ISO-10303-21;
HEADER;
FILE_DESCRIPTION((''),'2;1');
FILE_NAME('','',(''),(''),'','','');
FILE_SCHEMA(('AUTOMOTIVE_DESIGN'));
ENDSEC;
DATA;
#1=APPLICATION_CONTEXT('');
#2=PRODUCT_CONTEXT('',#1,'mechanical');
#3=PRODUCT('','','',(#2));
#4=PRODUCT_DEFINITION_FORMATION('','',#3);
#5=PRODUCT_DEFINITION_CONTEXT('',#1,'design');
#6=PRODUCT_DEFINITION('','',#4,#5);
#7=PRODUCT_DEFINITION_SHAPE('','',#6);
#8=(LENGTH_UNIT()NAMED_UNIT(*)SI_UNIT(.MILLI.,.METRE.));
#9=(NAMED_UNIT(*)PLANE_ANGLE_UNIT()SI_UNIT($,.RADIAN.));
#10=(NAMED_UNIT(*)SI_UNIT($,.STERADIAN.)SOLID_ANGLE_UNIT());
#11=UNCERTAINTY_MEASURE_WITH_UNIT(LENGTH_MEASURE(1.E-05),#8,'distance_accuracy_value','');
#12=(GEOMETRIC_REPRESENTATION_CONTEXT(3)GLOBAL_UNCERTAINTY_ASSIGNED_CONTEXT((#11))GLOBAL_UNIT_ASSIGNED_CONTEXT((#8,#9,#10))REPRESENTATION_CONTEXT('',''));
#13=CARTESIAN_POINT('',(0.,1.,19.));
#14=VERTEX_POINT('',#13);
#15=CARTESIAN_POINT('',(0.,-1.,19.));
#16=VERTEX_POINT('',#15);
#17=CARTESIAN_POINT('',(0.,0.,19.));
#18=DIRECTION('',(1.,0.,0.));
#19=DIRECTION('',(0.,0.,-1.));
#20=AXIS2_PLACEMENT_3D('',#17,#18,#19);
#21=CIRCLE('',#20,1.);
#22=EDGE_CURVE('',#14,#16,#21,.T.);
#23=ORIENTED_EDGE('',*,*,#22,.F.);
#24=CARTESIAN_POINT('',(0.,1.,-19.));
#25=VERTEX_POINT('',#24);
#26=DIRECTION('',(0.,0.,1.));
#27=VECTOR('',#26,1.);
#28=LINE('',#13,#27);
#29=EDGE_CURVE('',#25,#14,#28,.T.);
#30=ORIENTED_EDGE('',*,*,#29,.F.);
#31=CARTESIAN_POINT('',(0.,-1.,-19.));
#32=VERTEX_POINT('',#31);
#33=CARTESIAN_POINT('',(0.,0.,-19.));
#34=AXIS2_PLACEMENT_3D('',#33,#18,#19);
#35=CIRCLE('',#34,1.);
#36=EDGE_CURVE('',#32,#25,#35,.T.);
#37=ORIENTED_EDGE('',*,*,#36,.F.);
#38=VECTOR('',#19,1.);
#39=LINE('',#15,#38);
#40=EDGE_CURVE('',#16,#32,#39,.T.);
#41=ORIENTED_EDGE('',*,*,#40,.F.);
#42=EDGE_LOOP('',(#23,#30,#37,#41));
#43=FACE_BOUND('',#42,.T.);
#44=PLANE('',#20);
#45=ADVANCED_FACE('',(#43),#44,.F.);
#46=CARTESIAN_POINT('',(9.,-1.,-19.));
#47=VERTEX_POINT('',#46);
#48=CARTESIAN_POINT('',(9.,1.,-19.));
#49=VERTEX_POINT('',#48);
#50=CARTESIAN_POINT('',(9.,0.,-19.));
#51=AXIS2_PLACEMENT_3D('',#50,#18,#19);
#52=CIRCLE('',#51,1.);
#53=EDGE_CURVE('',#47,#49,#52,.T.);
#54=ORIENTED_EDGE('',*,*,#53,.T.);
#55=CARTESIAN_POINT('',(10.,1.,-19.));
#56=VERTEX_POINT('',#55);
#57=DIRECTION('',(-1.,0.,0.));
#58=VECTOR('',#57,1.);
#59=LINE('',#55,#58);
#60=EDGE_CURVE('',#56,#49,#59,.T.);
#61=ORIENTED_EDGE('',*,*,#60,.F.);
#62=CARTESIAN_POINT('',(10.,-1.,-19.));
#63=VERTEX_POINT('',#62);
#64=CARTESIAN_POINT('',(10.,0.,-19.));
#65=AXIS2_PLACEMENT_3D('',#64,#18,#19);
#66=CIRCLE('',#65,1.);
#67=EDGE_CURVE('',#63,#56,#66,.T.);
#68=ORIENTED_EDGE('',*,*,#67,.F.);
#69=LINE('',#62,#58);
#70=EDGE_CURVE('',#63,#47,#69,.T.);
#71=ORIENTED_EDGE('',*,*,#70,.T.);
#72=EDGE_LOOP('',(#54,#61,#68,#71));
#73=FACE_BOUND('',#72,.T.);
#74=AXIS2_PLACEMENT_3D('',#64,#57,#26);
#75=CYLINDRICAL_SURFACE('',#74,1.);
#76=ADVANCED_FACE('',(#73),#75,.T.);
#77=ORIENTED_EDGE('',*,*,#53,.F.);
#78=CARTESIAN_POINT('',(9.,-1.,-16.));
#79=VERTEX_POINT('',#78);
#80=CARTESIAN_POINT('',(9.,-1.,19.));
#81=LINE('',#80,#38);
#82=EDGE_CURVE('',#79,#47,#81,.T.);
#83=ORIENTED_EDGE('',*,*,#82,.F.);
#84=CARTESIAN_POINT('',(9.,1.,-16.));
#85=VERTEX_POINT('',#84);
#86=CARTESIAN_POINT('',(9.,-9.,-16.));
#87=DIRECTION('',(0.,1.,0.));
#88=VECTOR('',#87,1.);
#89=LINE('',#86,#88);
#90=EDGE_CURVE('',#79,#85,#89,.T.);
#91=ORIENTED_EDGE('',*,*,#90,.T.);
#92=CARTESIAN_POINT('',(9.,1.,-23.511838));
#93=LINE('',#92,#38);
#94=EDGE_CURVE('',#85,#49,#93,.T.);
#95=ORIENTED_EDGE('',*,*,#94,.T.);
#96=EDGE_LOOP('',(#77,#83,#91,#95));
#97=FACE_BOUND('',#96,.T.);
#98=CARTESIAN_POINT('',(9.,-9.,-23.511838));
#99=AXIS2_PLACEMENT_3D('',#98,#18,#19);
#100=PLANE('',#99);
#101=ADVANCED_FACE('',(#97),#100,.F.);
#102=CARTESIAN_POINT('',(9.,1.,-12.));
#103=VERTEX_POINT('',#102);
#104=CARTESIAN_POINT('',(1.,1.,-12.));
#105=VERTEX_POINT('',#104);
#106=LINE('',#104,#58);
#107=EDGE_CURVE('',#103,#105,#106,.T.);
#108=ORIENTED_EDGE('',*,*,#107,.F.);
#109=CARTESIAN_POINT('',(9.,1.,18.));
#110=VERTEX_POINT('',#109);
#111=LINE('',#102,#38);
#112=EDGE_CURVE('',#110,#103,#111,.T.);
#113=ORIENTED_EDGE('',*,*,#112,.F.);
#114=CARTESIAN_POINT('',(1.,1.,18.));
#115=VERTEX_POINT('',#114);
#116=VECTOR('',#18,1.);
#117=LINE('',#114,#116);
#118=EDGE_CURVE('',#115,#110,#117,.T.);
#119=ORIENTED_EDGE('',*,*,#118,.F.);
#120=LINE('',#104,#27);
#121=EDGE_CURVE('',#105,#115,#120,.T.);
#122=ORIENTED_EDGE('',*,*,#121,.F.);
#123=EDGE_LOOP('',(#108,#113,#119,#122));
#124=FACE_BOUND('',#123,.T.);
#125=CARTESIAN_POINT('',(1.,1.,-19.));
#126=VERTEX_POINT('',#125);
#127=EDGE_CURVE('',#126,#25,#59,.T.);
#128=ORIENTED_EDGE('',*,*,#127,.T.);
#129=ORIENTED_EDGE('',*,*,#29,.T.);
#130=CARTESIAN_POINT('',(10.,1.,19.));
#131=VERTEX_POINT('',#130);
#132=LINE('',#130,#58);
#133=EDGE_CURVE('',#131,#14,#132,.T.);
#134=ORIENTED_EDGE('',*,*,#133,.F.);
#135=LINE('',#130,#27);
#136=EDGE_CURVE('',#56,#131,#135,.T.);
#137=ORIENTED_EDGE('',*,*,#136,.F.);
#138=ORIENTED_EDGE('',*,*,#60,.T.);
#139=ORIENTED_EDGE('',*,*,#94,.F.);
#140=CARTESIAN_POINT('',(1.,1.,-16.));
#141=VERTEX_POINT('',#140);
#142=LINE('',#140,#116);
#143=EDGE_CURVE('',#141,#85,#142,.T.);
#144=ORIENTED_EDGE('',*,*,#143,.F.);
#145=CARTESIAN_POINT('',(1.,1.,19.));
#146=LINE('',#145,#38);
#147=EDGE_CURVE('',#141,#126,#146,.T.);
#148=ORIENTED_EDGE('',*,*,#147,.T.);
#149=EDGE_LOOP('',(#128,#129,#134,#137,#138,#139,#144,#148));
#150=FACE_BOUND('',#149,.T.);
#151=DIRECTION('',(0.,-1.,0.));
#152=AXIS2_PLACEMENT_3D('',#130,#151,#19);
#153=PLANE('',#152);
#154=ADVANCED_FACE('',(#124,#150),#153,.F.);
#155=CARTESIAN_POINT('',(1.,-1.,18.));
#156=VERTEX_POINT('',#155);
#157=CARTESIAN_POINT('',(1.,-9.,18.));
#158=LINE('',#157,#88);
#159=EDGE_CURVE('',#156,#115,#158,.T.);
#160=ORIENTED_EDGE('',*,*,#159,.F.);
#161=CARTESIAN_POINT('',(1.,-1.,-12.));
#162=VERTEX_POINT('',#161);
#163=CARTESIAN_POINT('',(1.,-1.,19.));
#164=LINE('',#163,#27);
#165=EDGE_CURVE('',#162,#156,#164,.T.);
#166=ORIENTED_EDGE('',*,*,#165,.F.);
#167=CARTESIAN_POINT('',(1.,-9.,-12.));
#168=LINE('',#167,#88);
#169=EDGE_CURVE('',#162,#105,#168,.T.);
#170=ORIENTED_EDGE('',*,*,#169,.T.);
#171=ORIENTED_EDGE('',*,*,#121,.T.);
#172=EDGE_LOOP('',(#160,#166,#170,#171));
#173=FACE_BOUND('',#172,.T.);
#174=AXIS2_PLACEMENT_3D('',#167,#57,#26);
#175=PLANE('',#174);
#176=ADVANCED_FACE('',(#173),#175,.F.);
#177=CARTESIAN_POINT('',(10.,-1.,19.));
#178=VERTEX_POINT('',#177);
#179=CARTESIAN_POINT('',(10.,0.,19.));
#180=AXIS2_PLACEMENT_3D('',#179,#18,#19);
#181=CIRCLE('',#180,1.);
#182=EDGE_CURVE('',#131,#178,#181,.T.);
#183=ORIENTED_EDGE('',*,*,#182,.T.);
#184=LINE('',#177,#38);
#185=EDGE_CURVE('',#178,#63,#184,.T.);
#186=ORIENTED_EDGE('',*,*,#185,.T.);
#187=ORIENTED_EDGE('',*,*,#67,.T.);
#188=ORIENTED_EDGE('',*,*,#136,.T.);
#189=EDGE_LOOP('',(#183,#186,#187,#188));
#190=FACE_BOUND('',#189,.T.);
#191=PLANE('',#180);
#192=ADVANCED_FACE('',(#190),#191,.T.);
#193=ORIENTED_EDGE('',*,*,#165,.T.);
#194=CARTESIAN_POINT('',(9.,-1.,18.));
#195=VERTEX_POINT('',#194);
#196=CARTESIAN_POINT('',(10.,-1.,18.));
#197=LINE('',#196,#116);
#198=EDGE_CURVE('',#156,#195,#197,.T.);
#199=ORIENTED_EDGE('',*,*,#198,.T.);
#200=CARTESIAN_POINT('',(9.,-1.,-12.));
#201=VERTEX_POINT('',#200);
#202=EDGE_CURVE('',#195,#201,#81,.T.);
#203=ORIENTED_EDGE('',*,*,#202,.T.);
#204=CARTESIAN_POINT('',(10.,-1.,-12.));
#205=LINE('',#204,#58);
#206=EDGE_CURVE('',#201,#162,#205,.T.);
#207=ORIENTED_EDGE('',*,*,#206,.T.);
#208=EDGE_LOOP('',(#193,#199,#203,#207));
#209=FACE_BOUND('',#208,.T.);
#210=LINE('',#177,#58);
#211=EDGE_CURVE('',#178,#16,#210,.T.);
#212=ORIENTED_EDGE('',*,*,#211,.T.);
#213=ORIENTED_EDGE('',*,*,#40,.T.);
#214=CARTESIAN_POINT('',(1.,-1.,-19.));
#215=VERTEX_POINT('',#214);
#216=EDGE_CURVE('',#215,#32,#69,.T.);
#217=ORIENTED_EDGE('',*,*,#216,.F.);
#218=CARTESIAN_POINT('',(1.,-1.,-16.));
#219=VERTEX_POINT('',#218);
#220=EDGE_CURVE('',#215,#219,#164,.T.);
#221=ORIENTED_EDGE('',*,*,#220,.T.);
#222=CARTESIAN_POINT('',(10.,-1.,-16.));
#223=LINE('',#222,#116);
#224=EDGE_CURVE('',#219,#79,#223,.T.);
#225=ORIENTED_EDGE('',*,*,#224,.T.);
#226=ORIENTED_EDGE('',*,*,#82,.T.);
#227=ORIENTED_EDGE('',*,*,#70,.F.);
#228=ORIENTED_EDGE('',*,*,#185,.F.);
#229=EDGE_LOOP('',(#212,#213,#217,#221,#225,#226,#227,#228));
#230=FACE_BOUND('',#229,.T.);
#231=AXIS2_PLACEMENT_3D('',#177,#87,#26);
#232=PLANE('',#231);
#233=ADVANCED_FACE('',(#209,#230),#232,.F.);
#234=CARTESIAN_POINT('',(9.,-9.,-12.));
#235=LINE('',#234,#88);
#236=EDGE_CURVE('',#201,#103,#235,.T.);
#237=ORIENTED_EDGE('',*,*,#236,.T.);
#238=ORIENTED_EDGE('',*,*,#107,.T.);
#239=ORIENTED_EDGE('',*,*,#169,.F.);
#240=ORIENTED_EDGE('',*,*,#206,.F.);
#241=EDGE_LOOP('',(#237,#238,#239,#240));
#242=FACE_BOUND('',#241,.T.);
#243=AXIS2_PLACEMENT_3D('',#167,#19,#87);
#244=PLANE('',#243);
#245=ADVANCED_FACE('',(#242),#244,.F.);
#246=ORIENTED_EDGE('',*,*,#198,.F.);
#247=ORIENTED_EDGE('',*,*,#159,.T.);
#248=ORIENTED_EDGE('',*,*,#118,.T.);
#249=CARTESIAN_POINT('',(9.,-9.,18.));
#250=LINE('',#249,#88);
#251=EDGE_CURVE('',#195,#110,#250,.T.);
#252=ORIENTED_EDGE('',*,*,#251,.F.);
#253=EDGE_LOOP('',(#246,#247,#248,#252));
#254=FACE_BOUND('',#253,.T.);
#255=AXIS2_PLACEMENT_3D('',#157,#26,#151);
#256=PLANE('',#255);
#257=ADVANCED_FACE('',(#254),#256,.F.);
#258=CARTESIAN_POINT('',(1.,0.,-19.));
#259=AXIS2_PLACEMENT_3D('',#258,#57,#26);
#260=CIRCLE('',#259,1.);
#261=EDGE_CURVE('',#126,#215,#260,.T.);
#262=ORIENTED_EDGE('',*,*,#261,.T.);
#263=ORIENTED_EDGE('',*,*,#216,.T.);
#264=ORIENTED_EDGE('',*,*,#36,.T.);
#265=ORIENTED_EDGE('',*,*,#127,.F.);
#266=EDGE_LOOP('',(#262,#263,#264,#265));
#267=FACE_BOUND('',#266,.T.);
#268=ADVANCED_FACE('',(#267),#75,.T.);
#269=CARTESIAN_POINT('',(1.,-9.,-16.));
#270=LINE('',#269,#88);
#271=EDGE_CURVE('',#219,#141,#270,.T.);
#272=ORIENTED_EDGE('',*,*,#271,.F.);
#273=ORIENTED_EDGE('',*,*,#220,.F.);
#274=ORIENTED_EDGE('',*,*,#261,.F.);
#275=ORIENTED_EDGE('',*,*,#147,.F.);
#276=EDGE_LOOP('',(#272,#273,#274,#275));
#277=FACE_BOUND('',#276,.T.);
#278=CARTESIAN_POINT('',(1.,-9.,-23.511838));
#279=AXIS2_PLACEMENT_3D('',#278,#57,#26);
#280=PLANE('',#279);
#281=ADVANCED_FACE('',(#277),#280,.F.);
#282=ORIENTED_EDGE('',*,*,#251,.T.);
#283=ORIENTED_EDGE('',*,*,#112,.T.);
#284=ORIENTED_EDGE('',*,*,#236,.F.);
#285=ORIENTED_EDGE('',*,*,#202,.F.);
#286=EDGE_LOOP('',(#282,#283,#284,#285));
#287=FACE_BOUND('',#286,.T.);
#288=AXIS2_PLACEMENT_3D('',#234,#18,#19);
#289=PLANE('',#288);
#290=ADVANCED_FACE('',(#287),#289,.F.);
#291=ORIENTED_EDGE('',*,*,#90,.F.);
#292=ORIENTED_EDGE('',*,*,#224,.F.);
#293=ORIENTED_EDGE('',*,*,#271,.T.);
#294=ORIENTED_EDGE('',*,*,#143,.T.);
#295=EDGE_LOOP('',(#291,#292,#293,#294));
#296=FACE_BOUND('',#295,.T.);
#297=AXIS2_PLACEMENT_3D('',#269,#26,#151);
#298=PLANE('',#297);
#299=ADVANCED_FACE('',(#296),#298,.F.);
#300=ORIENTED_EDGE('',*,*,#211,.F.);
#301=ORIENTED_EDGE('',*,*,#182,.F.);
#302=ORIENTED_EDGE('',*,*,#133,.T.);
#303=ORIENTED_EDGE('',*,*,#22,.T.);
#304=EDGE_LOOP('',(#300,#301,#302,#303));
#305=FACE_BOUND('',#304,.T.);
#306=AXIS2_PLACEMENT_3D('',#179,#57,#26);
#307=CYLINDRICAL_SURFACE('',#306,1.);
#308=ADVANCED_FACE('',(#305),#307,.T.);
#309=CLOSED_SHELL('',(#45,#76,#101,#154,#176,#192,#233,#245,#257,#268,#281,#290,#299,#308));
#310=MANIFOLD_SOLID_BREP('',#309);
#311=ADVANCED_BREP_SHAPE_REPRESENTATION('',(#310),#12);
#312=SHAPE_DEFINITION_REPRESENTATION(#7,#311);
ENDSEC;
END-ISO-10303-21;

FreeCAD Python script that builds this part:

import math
import FreeCAD as App
import Part
import Sketcher
from FreeCAD import Vector
Q = App.Units.Quantity

doc = App.newDocument("Part")
body = doc.addObject("PartDesign::Body", "Body")

sketch1 = doc.addObject("Sketcher::SketchObject", "Sketch")
body.addObject(sketch1)
sketch1.AttachmentSupport = (doc.YZ_Plane, [""])
sketch1.MapMode = "FlatFace"
sketch1.addGeometry([
    Part.LineSegment(Vector(1, -19, 0), Vector(1, 19, 0)),
    Part.ArcOfCircle(Part.Circle(Vector(0, 19, 0), Vector(0, 0, 1), 1), math.radians(0), math.radians(180)),
    Part.LineSegment(Vector(-1, 19, 0), Vector(-1, -19, 0)),
    Part.ArcOfCircle(Part.Circle(Vector(0, -19, 0), Vector(0, 0, 1), 1), math.radians(180), math.radians(360)),
], False)
sketch1.addConstraint([
    Sketcher.Constraint("Tangent", 0, 2, 1, 1),
    Sketcher.Constraint("Tangent", 1, 2, 2, 1),
    Sketcher.Constraint("Tangent", 2, 2, 3, 1),
    Sketcher.Constraint("Tangent", 3, 2, 0, 1),
    Sketcher.Constraint("Vertical", 0),
    Sketcher.Constraint("Vertical", 2),
    Sketcher.Constraint("Symmetric", 1, 3, 3, 3, -1, 1),
    Sketcher.Constraint("Radius", 1, Q("1 mm")),
    Sketcher.Constraint("DistanceY", 0, 1, 0, 2, Q("38 mm")),
])
pad1 = doc.addObject("PartDesign::Pad", "Pad")
body.addObject(pad1)
pad1.Profile = sketch1
pad1.Length = 10

sketch2 = doc.addObject("Sketcher::SketchObject", "Sketch001")
body.addObject(sketch2)
sketch2.AttachmentSupport = (doc.XZ_Plane, [""])
sketch2.MapMode = "FlatFace"
sketch2.AttachmentOffset = App.Placement(Vector(0, 0, -1), App.Rotation())
sketch2.addGeometry([
    Part.LineSegment(Vector(1, -12, 0), Vector(1, 18, 0)),
    Part.LineSegment(Vector(1, 18, 0), Vector(9, 18, 0)),
    Part.LineSegment(Vector(9, 18, 0), Vector(9, -12, 0)),
    Part.LineSegment(Vector(9, -12, 0), Vector(1, -12, 0)),
    Part.LineSegment(Vector(1, -24, 0), Vector(1, -16, 0)),
    Part.LineSegment(Vector(1, -16, 0), Vector(9, -16, 0)),
    Part.LineSegment(Vector(9, -16, 0), Vector(9, -24, 0)),
    Part.LineSegment(Vector(9, -24, 0), Vector(1, -24, 0)),
], False)
sketch2.addConstraint([
    Sketcher.Constraint("Coincident", 0, 2, 1, 1),
    Sketcher.Constraint("Coincident", 1, 2, 2, 1),
    Sketcher.Constraint("Coincident", 2, 2, 3, 1),
    Sketcher.Constraint("Coincident", 3, 2, 0, 1),
    Sketcher.Constraint("Coincident", 4, 2, 5, 1),
    Sketcher.Constraint("Coincident", 5, 2, 6, 1),
    Sketcher.Constraint("Coincident", 6, 2, 7, 1),
    Sketcher.Constraint("Coincident", 7, 2, 4, 1),
    Sketcher.Constraint("Vertical", 0),
    Sketcher.Constraint("Horizontal", 1),
    Sketcher.Constraint("Vertical", 2),
    Sketcher.Constraint("Horizontal", 3),
    Sketcher.Constraint("Vertical", 4),
    Sketcher.Constraint("Horizontal", 5),
    Sketcher.Constraint("Vertical", 6),
    Sketcher.Constraint("Horizontal", 7),
    Sketcher.Constraint("Vertical", 3, 2, 4, 2),
    Sketcher.Constraint("Vertical", 2, 2, 5, 2),
    Sketcher.Constraint("DistanceX", 1, 1, 1, 2, Q("8 mm")),
    Sketcher.Constraint("DistanceY", 0, 1, 0, 2, Q("30 mm")),
    Sketcher.Constraint("DistanceX", -1, 1, 0, 2, Q("1 mm")),
    Sketcher.Constraint("DistanceY", -1, 1, 0, 2, Q("18 mm")),
    Sketcher.Constraint("DistanceY", 4, 2, -1, 1, Q("16 mm")),
    Sketcher.Constraint("DistanceY", 4, 1, 4, 2, Q("7.511838 mm")),
])
pocket1 = doc.addObject("PartDesign::Pocket", "Pocket")
body.addObject(pocket1)
pocket1.Profile = sketch2
pocket1.Length = 10
pocket1.Reversed = True

doc.recompute()
